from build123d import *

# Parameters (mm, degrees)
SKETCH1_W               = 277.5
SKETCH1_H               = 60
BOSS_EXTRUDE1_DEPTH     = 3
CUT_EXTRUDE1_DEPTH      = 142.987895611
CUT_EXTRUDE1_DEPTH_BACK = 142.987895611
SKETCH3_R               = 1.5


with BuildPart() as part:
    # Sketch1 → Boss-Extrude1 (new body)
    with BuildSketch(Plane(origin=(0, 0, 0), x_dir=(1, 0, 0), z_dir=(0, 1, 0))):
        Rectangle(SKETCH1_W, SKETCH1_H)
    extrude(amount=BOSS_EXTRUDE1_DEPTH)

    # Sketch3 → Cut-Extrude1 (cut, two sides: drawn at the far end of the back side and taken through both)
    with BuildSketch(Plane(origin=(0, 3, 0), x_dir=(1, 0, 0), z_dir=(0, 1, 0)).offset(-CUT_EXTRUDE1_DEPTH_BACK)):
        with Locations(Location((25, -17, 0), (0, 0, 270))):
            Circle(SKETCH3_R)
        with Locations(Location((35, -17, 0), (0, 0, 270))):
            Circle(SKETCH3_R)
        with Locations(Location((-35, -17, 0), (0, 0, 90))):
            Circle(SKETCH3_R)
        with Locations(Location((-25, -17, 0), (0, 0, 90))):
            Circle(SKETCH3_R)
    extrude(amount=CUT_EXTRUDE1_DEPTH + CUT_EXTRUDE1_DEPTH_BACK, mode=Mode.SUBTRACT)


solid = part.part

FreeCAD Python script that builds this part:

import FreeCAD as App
import Part
import Sketcher

V = App.Vector
Q = App.Units.Quantity

doc = App.newDocument("Part")
body = doc.addObject("PartDesign::Body", "Body")

sketch1 = doc.addObject("Sketcher::SketchObject", "Sketch")
body.addObject(sketch1)
sketch1.AttachmentSupport = (doc.XZ_Plane, [""])
sketch1.MapMode = "FlatFace"
sketch1.addGeometry([
    Part.LineSegment(V(-139, -30, 0), V(-139, 30, 0)),
    Part.LineSegment(V(-139, 30, 0), V(139, 30, 0)),
    Part.LineSegment(V(139, 30, 0), V(139, -30, 0)),
    Part.LineSegment(V(139, -30, 0), V(-139, -30, 0)),
], False)
sketch1.addConstraint([
    Sketcher.Constraint("Coincident", 0, 2, 1, 1),
    Sketcher.Constraint("Coincident", 1, 2, 2, 1),
    Sketcher.Constraint("Coincident", 2, 2, 3, 1),
    Sketcher.Constraint("Coincident", 3, 2, 0, 1),
    Sketcher.Constraint("Vertical", 0),
    Sketcher.Constraint("Horizontal", 1),
    Sketcher.Constraint("Vertical", 2),
    Sketcher.Constraint("Horizontal", 3),
    Sketcher.Constraint("Symmetric", 0, 2, 2, 2, -1, 1),
    Sketcher.Constraint("DistanceY", 0, 1, 0, 2, Q("60 mm")),
    Sketcher.Constraint("DistanceX", 1, 1, 1, 2, Q("277.5 mm")),
])
pad1 = doc.addObject("PartDesign::Pad", "Pad")
body.addObject(pad1)
pad1.Profile = sketch1
pad1.Length = 3
pad1.Reversed = True

sketch2 = doc.addObject("Sketcher::SketchObject", "Sketch001")
body.addObject(sketch2)
sketch2.AttachmentSupport = (doc.XZ_Plane, [""])
sketch2.MapMode = "FlatFace"
sketch2.AttachmentOffset = App.Placement(V(0, 0, -3), App.Rotation())
sketch2.addGeometry([
    Part.Circle(V(25, 17, 0), V(0, 0, 1), 1.5),
    Part.Circle(V(35, 17, 0), V(0, 0, 1), 1.5),
    Part.Circle(V(-35, 17, 0), V(0, 0, 1), 1.5),
    Part.Circle(V(-25, 17, 0), V(0, 0, 1), 1.5),
], False)
sketch2.addConstraint([
    Sketcher.Constraint("Equal", 0, 1),
    Sketcher.Constraint("Equal", 1, 2),
    Sketcher.Constraint("Equal", 2, 3),
    Sketcher.Constraint("Symmetric", 1, 3, 2, 3, -2),
    Sketcher.Constraint("Symmetric", 0, 3, 3, 3, -2),
    Sketcher.Constraint("Horizontal", 0, 3, 1, 3),
    Sketcher.Constraint("Diameter", 0, Q("3 mm")),
    Sketcher.Constraint("DistanceX", -1, 1, 0, 3, Q("25 mm")),
    Sketcher.Constraint("DistanceY", -1, 1, 0, 3, Q("17 mm")),
    Sketcher.Constraint("DistanceX", -1, 1, 1, 3, Q("35 mm")),
])
pocket1 = doc.addObject("PartDesign::Pocket", "Pocket")
body.addObject(pocket1)
pocket1.Profile = sketch2
pocket1.Type = "ThroughAll"
pocket1.Midplane = True

doc.recompute()
